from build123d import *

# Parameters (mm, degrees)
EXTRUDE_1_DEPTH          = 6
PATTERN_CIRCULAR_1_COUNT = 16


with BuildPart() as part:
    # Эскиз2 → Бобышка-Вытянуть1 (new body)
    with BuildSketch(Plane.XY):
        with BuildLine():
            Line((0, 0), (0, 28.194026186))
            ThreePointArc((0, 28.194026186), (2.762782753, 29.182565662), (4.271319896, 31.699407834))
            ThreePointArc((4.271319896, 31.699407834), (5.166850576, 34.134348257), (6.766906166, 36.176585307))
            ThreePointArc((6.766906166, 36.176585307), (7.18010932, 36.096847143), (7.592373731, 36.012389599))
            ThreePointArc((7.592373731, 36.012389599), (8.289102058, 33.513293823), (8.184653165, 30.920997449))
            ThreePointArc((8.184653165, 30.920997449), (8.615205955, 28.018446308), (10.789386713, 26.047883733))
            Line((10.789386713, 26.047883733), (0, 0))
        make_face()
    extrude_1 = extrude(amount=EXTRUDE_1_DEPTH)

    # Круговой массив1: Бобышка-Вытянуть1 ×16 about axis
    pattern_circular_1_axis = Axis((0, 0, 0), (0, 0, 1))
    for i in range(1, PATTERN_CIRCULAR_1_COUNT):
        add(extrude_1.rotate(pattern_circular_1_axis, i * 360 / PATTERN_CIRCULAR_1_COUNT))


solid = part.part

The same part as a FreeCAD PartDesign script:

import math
import FreeCAD as App
import Part
import Sketcher

V = App.Vector
Q = App.Units.Quantity

doc = App.newDocument("Part")
body = doc.addObject("PartDesign::Body", "Body")

sketch1 = body.newObject("Sketcher::SketchObject", "Sketch")
sketch1.AttachmentSupport = (doc.getObject("XY_Plane"), [""])
sketch1.MapMode = "FlatFace"
sketch1.addGeometry(Part.LineSegment(V(0, 28.194026, 0), V(0, 0, 0)), False)
sketch1.addGeometry(Part.LineSegment(V(0, 0, 0), V(10.789387, 26.047884, 0)), False)
sketch1.addGeometry(Part.ArcOfCircle(Part.Circle(V(12.455973, 30.071379, 0), V(0, 0, 1), 4.355), math.radians(168.75), math.radians(247.5)), False)
sketch1.addGeometry(Part.ArcOfCircle(Part.Circle(V(0, 32.549026, 0), V(0, 0, 1), 8.345), math.radians(-11.25), math.radians(24.520738)), False)
sketch1.addGeometry(Part.ArcOfCircle(Part.Circle(V(0, -0.000001, 0), V(0, 0, 1), 36.804027), math.radians(78.094862), math.radians(79.405138)), False)
sketch1.addGeometry(Part.ArcOfCircle(Part.Circle(V(12.455973, 30.071379, 0), V(0, 0, 1), 8.345), math.radians(132.979262), math.radians(168.75)), False)
sketch1.addGeometry(Part.ArcOfCircle(Part.Circle(V(0, 32.549026, 0), V(0, 0, 1), 4.355), math.radians(-90), math.radians(-11.25)), False)
sketch1.addConstraint(Sketcher.Constraint("Coincident", 0, 2, 1, 1))
sketch1.addConstraint(Sketcher.Constraint("Coincident", 1, 2, 2, 2))
sketch1.addConstraint(Sketcher.Constraint("Tangent", 2, 1, 3, 1))
sketch1.addConstraint(Sketcher.Constraint("Coincident", 3, 2, 4, 1))
sketch1.addConstraint(Sketcher.Constraint("Coincident", 4, 2, 5, 1))
sketch1.addConstraint(Sketcher.Constraint("Tangent", 5, 2, 6, 2))
sketch1.addConstraint(Sketcher.Constraint("Coincident", 6, 1, 0, 1))
sketch1.addConstraint(Sketcher.Constraint("Vertical", 0))
sketch1.addConstraint(Sketcher.Constraint("Coincident", 4, 3, -1, 1))
sketch1.addConstraint(Sketcher.Constraint("Coincident", 0, 2, -1, 1))
sketch1.addConstraint(Sketcher.Constraint("Coincident", 5, 3, 2, 3))
sketch1.addConstraint(Sketcher.Constraint("Coincident", 6, 3, 3, 3))
sketch1.addConstraint(Sketcher.Constraint("Equal", 3, 5))
sketch1.addConstraint(Sketcher.Constraint("PointOnObject", 3, 3, -2))
sketch1.addConstraint(Sketcher.Constraint("Angle", 1, Q("67.5 deg")))
sketch1.addConstraint(Sketcher.Constraint("Radius", 2, Q("4.355 mm")))
sketch1.addConstraint(Sketcher.Constraint("Radius", 3, Q("8.345 mm")))
sketch1.addConstraint(Sketcher.Constraint("Radius", 4, Q("36.804027 mm")))
sketch1.addConstraint(Sketcher.Constraint("DistanceX", 3, 2, 2, 3, Q("4.863599 mm")))
sketch1.addConstraint(Sketcher.Constraint("DistanceY", 0, 2, 0, 1, Q("28.194026 mm")))
pad1 = body.newObject("PartDesign::Pad", "Pad")
pad1.Profile = sketch1
pad1.Length = 6
doc.recompute()

polarpattern = body.newObject("PartDesign::PolarPattern", "PolarPattern")
polarpattern.Originals = [pad1]
polarpattern.Axis = (doc.getObject("Z_Axis"), [""])
polarpattern.Angle = 360
polarpattern.Occurrences = 16
body.Tip = polarpattern

doc.recompute()
